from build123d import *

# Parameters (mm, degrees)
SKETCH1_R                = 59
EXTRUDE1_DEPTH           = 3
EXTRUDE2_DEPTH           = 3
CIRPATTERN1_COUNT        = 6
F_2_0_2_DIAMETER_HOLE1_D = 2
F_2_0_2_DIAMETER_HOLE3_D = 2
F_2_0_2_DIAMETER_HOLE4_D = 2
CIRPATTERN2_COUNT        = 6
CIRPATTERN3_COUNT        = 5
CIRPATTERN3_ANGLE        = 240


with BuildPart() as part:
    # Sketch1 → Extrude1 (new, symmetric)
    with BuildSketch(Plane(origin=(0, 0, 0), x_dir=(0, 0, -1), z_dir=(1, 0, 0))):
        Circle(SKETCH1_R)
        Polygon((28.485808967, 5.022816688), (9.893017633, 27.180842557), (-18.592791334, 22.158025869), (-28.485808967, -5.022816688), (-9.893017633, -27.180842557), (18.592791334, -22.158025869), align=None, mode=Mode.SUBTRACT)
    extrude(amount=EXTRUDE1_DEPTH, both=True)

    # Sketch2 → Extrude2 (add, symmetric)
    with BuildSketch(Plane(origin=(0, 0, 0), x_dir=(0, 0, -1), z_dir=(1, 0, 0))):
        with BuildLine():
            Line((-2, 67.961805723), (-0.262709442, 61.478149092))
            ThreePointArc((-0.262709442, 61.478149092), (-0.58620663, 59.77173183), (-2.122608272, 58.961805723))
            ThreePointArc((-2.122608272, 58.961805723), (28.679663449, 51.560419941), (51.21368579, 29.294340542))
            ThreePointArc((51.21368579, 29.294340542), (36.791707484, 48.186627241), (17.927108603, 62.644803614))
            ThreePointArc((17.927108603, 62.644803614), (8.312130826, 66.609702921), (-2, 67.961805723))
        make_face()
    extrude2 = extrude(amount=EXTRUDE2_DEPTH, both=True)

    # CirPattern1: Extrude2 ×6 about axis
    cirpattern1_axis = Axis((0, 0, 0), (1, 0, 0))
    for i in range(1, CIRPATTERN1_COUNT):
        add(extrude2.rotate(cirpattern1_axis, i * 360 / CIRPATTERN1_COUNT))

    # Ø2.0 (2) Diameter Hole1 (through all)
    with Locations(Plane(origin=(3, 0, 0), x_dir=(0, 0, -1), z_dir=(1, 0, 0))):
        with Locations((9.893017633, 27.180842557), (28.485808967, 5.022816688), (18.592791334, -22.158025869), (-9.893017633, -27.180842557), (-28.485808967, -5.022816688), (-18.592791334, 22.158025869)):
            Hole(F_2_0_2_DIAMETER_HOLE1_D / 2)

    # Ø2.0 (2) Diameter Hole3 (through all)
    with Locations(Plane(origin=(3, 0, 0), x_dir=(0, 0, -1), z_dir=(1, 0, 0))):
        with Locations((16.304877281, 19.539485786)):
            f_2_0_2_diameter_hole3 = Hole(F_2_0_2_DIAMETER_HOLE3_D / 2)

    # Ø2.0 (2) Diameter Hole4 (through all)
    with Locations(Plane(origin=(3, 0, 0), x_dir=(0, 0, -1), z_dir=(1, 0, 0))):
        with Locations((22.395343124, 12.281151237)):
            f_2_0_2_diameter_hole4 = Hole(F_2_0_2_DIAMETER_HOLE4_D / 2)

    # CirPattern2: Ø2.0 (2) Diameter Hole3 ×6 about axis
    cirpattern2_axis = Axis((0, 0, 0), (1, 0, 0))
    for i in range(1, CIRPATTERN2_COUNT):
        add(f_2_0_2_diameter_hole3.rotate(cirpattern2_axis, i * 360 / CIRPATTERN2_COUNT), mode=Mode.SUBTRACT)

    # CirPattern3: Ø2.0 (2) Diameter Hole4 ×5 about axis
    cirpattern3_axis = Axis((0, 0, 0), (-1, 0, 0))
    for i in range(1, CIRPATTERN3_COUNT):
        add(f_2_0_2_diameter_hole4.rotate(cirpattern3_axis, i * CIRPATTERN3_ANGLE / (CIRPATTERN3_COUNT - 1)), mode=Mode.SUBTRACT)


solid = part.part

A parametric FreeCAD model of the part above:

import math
import FreeCAD as App
import Part
import Sketcher
Q = App.Units.Quantity

doc = App.newDocument("Part")
body = doc.addObject("PartDesign::Body", "Body")

# Sketch on YZ plane
sketch1 = body.newObject("Sketcher::SketchObject", "Sketch")
sketch1.AttachmentSupport = (doc.getObject("YZ_Plane"), [""])
sketch1.MapMode = "FlatFace"
sketch1.addGeometry([
    Part.Circle(App.Vector(0, 0, 0), App.Vector(0, 0, 1), 59),  # 0
    Part.LineSegment(App.Vector(27, -10, 0), App.Vector(5, -28, 0)),  # 1
    Part.LineSegment(App.Vector(5, -28, 0), App.Vector(-22, -19, 0)),  # 2
    Part.LineSegment(App.Vector(-22, -19, 0), App.Vector(-27, 10, 0)),  # 3
    Part.LineSegment(App.Vector(-27, 10, 0), App.Vector(-5, 28, 0)),  # 4
    Part.LineSegment(App.Vector(-5, 28, 0), App.Vector(22, 19, 0)),  # 5
    Part.LineSegment(App.Vector(22, 19, 0), App.Vector(27, -10, 0)),  # 6
], False)
sketch1.addConstraint([
    Sketcher.Constraint("Coincident", 1, 2, 2, 1),
    Sketcher.Constraint("Coincident", 2, 2, 3, 1),
    Sketcher.Constraint("Coincident", 3, 2, 4, 1),
    Sketcher.Constraint("Coincident", 4, 2, 5, 1),
    Sketcher.Constraint("Coincident", 5, 2, 6, 1),
    Sketcher.Constraint("Coincident", 6, 2, 1, 1),
    Sketcher.Constraint("Coincident", 0, 3, -1, 1),
    Sketcher.Constraint("Symmetric", 1, 2, 4, 2, -1, 1),
    Sketcher.Constraint("Symmetric", 2, 2, 5, 2, -1, 1),
    Sketcher.Constraint("Symmetric", 3, 2, 6, 2, -1, 1),
    Sketcher.Constraint("Equal", 1, 2),
    Sketcher.Constraint("Equal", 2, 3),
    Sketcher.Constraint("Diameter", 0, 118.0),
    Sketcher.Constraint("Angle", 1, Q("-140 deg")),
    Sketcher.Constraint("Angle", 2, Q("160 deg")),
    Sketcher.Constraint("Angle", 3, Q("100 deg")),
    Sketcher.Constraint("DistanceY", 2, 2, 4, 2, 47.0786),
])
pad1 = body.newObject("PartDesign::Pad", "Pad")
pad1.Profile = sketch1
pad1.Length = 6
pad1.Midplane = True

# Sketch on YZ plane
sketch2 = body.newObject("Sketcher::SketchObject", "Sketch001")
sketch2.AttachmentSupport = (doc.getObject("YZ_Plane"), [""])
sketch2.MapMode = "FlatFace"
sketch2.addGeometry([
    Part.LineSegment(App.Vector(68, 2, 0), App.Vector(61.5, 0.3, 0)),  # 0
    Part.ArcOfCircle(Part.Circle(App.Vector(61, 2.2, 0), App.Vector(0, 0, 1), 2), math.radians(-178), math.radians(-75)),  # 1
    Part.ArcOfCircle(Part.Circle(App.Vector(0, 0, 0), App.Vector(0, 0, 1), 59), math.radians(-60), math.radians(2)),  # 2
    Part.ArcOfCircle(Part.Circle(App.Vector(-15.4, 26.9, 0), App.Vector(0, 0, 1), 90), math.radians(-60), math.radians(-30)),  # 3
    Part.ArcOfCircle(Part.Circle(App.Vector(28, 2, 0), App.Vector(0, 0, 1), 40), math.radians(-30), math.radians(0)),  # 4
], False)
sketch2.addConstraint([
    Sketcher.Constraint("Tangent", 0, 2, 1, 2),
    Sketcher.Constraint("Tangent", 1, 1, 2, 2),
    Sketcher.Constraint("Tangent", 2, 1, 3, 1),
    Sketcher.Constraint("Tangent", 3, 2, 4, 1),
    Sketcher.Constraint("Coincident", 4, 2, 0, 1),
    Sketcher.Constraint("Coincident", 2, 3, -1, 1),
    Sketcher.Constraint("Radius", 1, 2.0),
    Sketcher.Constraint("Radius", 2, 59.0),
    Sketcher.Constraint("Radius", 3, 90.0),
    Sketcher.Constraint("Radius", 4, 40.0),
    Sketcher.Constraint("Angle", 0, Q("-165 deg")),
    Sketcher.Constraint("DistanceY", -1, 1, 4, 3, 2.0),
    Sketcher.Constraint("DistanceY", -1, 1, 4, 2, 2.0),
    Sketcher.Constraint("DistanceX", 4, 3, 1, 1, 31.0),
])
pad2 = body.newObject("PartDesign::Pad", "Pad001")
pad2.Profile = sketch2
pad2.Length = 6
pad2.Midplane = True
doc.recompute()

polarpattern = body.newObject("PartDesign::PolarPattern", "PolarPattern")
polarpattern.Originals = [pad2]
polarpattern.Axis = (doc.getObject("X_Axis"), [""])
polarpattern.Angle = 360
polarpattern.Occurrences = 6
body.Tip = polarpattern

# Sketch on YZ plane
sketch3 = body.newObject("Sketcher::SketchObject", "Sketch002")
sketch3.AttachmentSupport = (doc.getObject("YZ_Plane"), [""])
sketch3.MapMode = "FlatFace"
sketch3.AttachmentOffset = App.Placement(App.Vector(0, 0, 3), App.Rotation())
sketch3.addGeometry([
    Part.Circle(App.Vector(27.2, -9.9, 0), App.Vector(0, 0, 1), 1),  # 0
    Part.Circle(App.Vector(5, -28.5, 0), App.Vector(0, 0, 1), 1),  # 1
    Part.Circle(App.Vector(-22.2, -18.6, 0), App.Vector(0, 0, 1), 1),  # 2
    Part.Circle(App.Vector(-27.2, 9.9, 0), App.Vector(0, 0, 1), 1),  # 3
    Part.Circle(App.Vector(-5, 28.5, 0), App.Vector(0, 0, 1), 1),  # 4
    Part.Circle(App.Vector(22.2, 18.6, 0), App.Vector(0, 0, 1), 1),  # 5
], False)
sketch3.addConstraint([
    Sketcher.Constraint("Equal", 0, 1),
    Sketcher.Constraint("Equal", 1, 2),
    Sketcher.Constraint("Equal", 2, 3),
    Sketcher.Constraint("Equal", 3, 4),
    Sketcher.Constraint("Equal", 4, 5),
    Sketcher.Constraint("Symmetric", 0, 3, 3, 3, -1, 1),
    Sketcher.Constraint("Symmetric", 1, 3, 4, 3, -1, 1),
    Sketcher.Constraint("Symmetric", 2, 3, 5, 3, -1, 1),
    Sketcher.Constraint("Diameter", 0, 2.0),
    Sketcher.Constraint("DistanceY", 2, 3, 4, 3, 47.0786),
    Sketcher.Constraint("DistanceY", 1, 3, -1, 1, 28.485809),
    Sketcher.Constraint("DistanceY", 1, 3, 0, 3, 18.592791),
    Sketcher.Constraint("DistanceX", 2, 3, 0, 3, 49.338868),
    Sketcher.Constraint("DistanceX", 3, 3, 1, 3, 32.203659),
    Sketcher.Constraint("DistanceX", 2, 3, 5, 3, 44.316052),
])
doc.recompute()
hole = body.newObject("PartDesign::Hole", "Hole")
hole.Profile = sketch3
hole.ThreadType = "None"
hole.Diameter = 2
hole.DepthType = "ThroughAll"

# Sketch on YZ plane
sketch4 = body.newObject("Sketcher::SketchObject", "Sketch003")
sketch4.AttachmentSupport = (doc.getObject("YZ_Plane"), [""])
sketch4.MapMode = "FlatFace"
sketch4.AttachmentOffset = App.Placement(App.Vector(0, 0, 3), App.Rotation())
sketch4.addGeometry(Part.Circle(App.Vector(19.5, -16.3, 0), App.Vector(0, 0, 1), 1), False)
sketch4.addConstraint([
    Sketcher.Constraint("Diameter", 0, 2.0),
    Sketcher.Constraint("DistanceX", -1, 1, 0, 3, 19.539486),
    Sketcher.Constraint("DistanceY", 0, 3, -1, 1, 16.304877),
])
doc.recompute()
hole2 = body.newObject("PartDesign::Hole", "Hole001")
hole2.Profile = sketch4
hole2.ThreadType = "None"
hole2.Diameter = 2
hole2.DepthType = "ThroughAll"

# Sketch on YZ plane
sketch5 = body.newObject("Sketcher::SketchObject", "Sketch004")
sketch5.AttachmentSupport = (doc.getObject("YZ_Plane"), [""])
sketch5.MapMode = "FlatFace"
sketch5.AttachmentOffset = App.Placement(App.Vector(0, 0, 3), App.Rotation())
sketch5.addGeometry(Part.Circle(App.Vector(12.3, -22.4, 0), App.Vector(0, 0, 1), 1), False)
sketch5.addConstraint([
    Sketcher.Constraint("Diameter", 0, 2.0),
    Sketcher.Constraint("DistanceX", -1, 1, 0, 3, 12.281151),
    Sketcher.Constraint("DistanceY", 0, 3, -1, 1, 22.395343),
])
doc.recompute()
hole3 = body.newObject("PartDesign::Hole", "Hole002")
hole3.Profile = sketch5
hole3.ThreadType = "None"
hole3.Diameter = 2
hole3.DepthType = "ThroughAll"
doc.recompute()

polarpattern2 = body.newObject("PartDesign::PolarPattern", "PolarPattern001")
polarpattern2.Originals = [hole2]
polarpattern2.Axis = (doc.getObject("X_Axis"), [""])
polarpattern2.Angle = 360
polarpattern2.Occurrences = 6
body.Tip = polarpattern2
doc.recompute()

polarpattern3 = body.newObject("PartDesign::PolarPattern", "PolarPattern002")
polarpattern3.Originals = [hole3]
polarpattern3.Axis = (doc.getObject("X_Axis"), [""])
polarpattern3.Angle = 240
polarpattern3.Occurrences = 5
polarpattern3.Reversed = True
body.Tip = polarpattern3

doc.recompute()
